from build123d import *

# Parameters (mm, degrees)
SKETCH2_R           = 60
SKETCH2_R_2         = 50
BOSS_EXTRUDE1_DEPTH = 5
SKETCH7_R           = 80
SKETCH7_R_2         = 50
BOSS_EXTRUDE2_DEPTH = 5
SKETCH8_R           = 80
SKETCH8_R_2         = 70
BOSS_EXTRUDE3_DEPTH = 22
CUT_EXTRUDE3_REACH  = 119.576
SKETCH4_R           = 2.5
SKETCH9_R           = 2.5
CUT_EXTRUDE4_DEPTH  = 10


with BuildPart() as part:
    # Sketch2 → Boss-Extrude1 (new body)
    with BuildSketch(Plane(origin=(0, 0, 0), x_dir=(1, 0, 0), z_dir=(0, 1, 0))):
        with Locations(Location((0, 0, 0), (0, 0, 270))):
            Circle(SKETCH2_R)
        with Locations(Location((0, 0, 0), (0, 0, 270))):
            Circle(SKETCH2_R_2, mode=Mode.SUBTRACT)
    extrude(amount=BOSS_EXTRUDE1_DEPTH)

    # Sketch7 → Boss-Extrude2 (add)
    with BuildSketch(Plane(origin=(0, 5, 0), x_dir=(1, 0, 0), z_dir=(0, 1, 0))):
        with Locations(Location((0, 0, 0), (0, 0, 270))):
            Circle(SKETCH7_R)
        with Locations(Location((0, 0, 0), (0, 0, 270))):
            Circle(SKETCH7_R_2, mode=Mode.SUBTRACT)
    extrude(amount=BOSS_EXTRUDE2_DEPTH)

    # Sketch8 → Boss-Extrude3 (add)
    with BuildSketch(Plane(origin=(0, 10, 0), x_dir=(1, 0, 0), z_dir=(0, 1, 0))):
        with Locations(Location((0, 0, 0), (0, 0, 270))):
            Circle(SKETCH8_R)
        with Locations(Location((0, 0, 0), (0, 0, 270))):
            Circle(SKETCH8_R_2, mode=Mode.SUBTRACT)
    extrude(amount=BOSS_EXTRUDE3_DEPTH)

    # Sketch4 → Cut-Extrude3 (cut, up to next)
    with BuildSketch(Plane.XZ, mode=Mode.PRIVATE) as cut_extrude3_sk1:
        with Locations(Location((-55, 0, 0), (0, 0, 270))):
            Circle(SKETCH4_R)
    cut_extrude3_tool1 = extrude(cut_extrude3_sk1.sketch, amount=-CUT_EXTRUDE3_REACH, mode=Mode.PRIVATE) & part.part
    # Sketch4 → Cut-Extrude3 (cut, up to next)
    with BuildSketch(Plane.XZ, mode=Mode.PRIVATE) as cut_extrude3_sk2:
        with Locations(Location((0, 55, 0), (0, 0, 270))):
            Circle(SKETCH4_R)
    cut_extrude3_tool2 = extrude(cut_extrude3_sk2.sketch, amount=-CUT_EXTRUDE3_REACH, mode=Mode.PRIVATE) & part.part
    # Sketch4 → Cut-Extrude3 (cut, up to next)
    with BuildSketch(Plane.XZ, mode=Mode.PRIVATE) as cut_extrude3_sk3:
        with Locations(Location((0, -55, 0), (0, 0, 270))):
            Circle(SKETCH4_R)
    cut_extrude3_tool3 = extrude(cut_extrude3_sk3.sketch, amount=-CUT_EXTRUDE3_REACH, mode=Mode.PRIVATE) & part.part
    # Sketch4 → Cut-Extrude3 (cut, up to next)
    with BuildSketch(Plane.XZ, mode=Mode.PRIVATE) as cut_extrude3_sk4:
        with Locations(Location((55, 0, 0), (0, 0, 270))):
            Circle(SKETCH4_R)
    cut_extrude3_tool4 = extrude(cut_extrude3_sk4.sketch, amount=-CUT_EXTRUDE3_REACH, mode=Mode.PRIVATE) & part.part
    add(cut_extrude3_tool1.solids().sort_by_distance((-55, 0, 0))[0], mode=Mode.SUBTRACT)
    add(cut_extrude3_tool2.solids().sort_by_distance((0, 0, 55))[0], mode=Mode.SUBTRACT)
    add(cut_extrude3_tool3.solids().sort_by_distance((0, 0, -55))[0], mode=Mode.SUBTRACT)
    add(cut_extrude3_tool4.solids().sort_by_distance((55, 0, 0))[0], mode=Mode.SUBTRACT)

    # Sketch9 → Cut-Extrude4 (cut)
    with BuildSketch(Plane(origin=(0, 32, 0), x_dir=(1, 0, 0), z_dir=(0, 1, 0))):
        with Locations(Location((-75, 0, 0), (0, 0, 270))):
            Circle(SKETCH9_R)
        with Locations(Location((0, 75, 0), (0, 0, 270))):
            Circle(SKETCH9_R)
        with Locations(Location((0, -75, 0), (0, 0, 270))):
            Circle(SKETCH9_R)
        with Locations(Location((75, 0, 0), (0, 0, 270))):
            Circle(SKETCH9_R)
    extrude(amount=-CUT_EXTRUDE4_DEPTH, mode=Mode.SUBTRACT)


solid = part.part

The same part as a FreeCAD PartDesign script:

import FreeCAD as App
import Part
import Sketcher

doc = App.newDocument("Part")
params = doc.addObject("Spreadsheet::Sheet", "Params")
for row, (alias, value) in enumerate([
    ("sketch1_diameter", "120 mm"),
    ("sketch1_diameter2", "100 mm"),
    ("pad1_length", "5 mm"),
    ("sketch2_diameter", "160 mm"),
    ("sketch2_diameter2", "100 mm"),
    ("pad2_length", "5 mm"),
    ("sketch3_diameter", "160 mm"),
    ("sketch3_diameter2", "140 mm"),
    ("pad3_length", "22 mm"),
    ("sketch4_diameter", "5 mm"),
    ("sketch5_diameter", "5 mm"),
    ("sketch6_diameter", "5 mm"),
    ("sketch7_diameter", "5 mm"),
    ("sketch8_diameter", "5 mm"),
    ("pocket5_length", "10 mm"),
], start=1):
    params.set(f"A{row}", alias)
    params.set(f"B{row}", "=" + value)
    params.setAlias(f"B{row}", alias)

body = doc.addObject("PartDesign::Body", "Body")

# Sketch on XZ plane
sketch1 = doc.addObject("Sketcher::SketchObject", "Sketch")
body.addObject(sketch1)
sketch1.AttachmentSupport = (doc.XZ_Plane, [""])
sketch1.MapMode = "FlatFace"
sketch1.addGeometry([
    Part.Circle(App.Vector(0, 0, 0), App.Vector(0, 0, 1), 60),
    Part.Circle(App.Vector(0, 0, 0), App.Vector(0, 0, 1), 50),
], False)
sketch1.addConstraint([
    Sketcher.Constraint("Coincident", 0, 3, -1, 1),
    Sketcher.Constraint("Coincident", 1, 3, -1, 1),
    Sketcher.Constraint("Diameter", 0, 120.0),
    Sketcher.Constraint("Diameter", 1, 100.0),
])
sketch1.setExpression("Constraints[2]", "Params.sketch1_diameter")
sketch1.setExpression("Constraints[3]", "Params.sketch1_diameter2")
pad1 = doc.addObject("PartDesign::Pad", "Pad")
body.addObject(pad1)
pad1.Profile = sketch1
pad1.setExpression("Length", "Params.pad1_length")
pad1.Reversed = True

# Sketch on XZ plane
sketch2 = doc.addObject("Sketcher::SketchObject", "Sketch001")
body.addObject(sketch2)
sketch2.AttachmentSupport = (doc.XZ_Plane, [""])
sketch2.MapMode = "FlatFace"
sketch2.AttachmentOffset = App.Placement(App.Vector(0, 0, -5), App.Rotation())
sketch2.addGeometry([
    Part.Circle(App.Vector(0, 0, 0), App.Vector(0, 0, 1), 80),
    Part.Circle(App.Vector(0, 0, 0), App.Vector(0, 0, 1), 50),
], False)
sketch2.addConstraint([
    Sketcher.Constraint("Coincident", 0, 3, -1, 1),
    Sketcher.Constraint("Coincident", 1, 3, -1, 1),
    Sketcher.Constraint("Diameter", 0, 160.0),
    Sketcher.Constraint("Diameter", 1, 100.0),
])
sketch2.setExpression("Constraints[2]", "Params.sketch2_diameter")
sketch2.setExpression("Constraints[3]", "Params.sketch2_diameter2")
pad2 = doc.addObject("PartDesign::Pad", "Pad001")
body.addObject(pad2)
pad2.Profile = sketch2
pad2.setExpression("Length", "Params.pad2_length")
pad2.Reversed = True

# Sketch on XZ plane
sketch3 = doc.addObject("Sketcher::SketchObject", "Sketch002")
body.addObject(sketch3)
sketch3.AttachmentSupport = (doc.XZ_Plane, [""])
sketch3.MapMode = "FlatFace"
sketch3.AttachmentOffset = App.Placement(App.Vector(0, 0, -10), App.Rotation())
sketch3.addGeometry([
    Part.Circle(App.Vector(0, 0, 0), App.Vector(0, 0, 1), 80),
    Part.Circle(App.Vector(0, 0, 0), App.Vector(0, 0, 1), 70),
], False)
sketch3.addConstraint([
    Sketcher.Constraint("Coincident", 0, 3, -1, 1),
    Sketcher.Constraint("Coincident", 1, 3, -1, 1),
    Sketcher.Constraint("Diameter", 0, 160.0),
    Sketcher.Constraint("Diameter", 1, 140.0),
])
sketch3.setExpression("Constraints[2]", "Params.sketch3_diameter")
sketch3.setExpression("Constraints[3]", "Params.sketch3_diameter2")
pad3 = doc.addObject("PartDesign::Pad", "Pad002")
body.addObject(pad3)
pad3.Profile = sketch3
pad3.setExpression("Length", "Params.pad3_length")
pad3.Reversed = True

# Sketch on XZ plane
sketch4 = doc.addObject("Sketcher::SketchObject", "Sketch003")
body.addObject(sketch4)
sketch4.AttachmentSupport = (doc.XZ_Plane, [""])
sketch4.MapMode = "FlatFace"
sketch4.addGeometry(Part.Circle(App.Vector(-55, 0, 0), App.Vector(0, 0, 1), 2.5), False)
sketch4.addConstraint([
    Sketcher.Constraint("PointOnObject", 0, 3, -1),
    Sketcher.Constraint("Diameter", 0, 5.0),
    Sketcher.Constraint("DistanceX", 0, 3, -1, 1, 55.0),
])
sketch4.setExpression("Constraints[1]", "Params.sketch4_diameter")
pocket1 = doc.addObject("PartDesign::Pocket", "Pocket")
body.addObject(pocket1)
pocket1.Profile = sketch4
pocket1.Type = "UpToFirst"

# Sketch on XZ plane
sketch5 = doc.addObject("Sketcher::SketchObject", "Sketch004")
body.addObject(sketch5)
sketch5.AttachmentSupport = (doc.XZ_Plane, [""])
sketch5.MapMode = "FlatFace"
sketch5.addGeometry(Part.Circle(App.Vector(0, 55, 0), App.Vector(0, 0, 1), 2.5), False)
sketch5.addConstraint([
    Sketcher.Constraint("PointOnObject", 0, 3, -2),
    Sketcher.Constraint("Diameter", 0, 5.0),
    Sketcher.Constraint("DistanceY", -1, 1, 0, 3, 55.0),
])
sketch5.setExpression("Constraints[1]", "Params.sketch5_diameter")
pocket2 = doc.addObject("PartDesign::Pocket", "Pocket001")
body.addObject(pocket2)
pocket2.Profile = sketch5
pocket2.Type = "UpToFirst"

# Sketch on XZ plane
sketch6 = doc.addObject("Sketcher::SketchObject", "Sketch005")
body.addObject(sketch6)
sketch6.AttachmentSupport = (doc.XZ_Plane, [""])
sketch6.MapMode = "FlatFace"
sketch6.addGeometry(Part.Circle(App.Vector(0, -55, 0), App.Vector(0, 0, 1), 2.5), False)
sketch6.addConstraint([
    Sketcher.Constraint("PointOnObject", 0, 3, -2),
    Sketcher.Constraint("Diameter", 0, 5.0),
    Sketcher.Constraint("DistanceY", 0, 3, -1, 1, 55.0),
])
sketch6.setExpression("Constraints[1]", "Params.sketch6_diameter")
pocket3 = doc.addObject("PartDesign::Pocket", "Pocket002")
body.addObject(pocket3)
pocket3.Profile = sketch6
pocket3.Type = "UpToFirst"

# Sketch on XZ plane
sketch7 = doc.addObject("Sketcher::SketchObject", "Sketch006")
body.addObject(sketch7)
sketch7.AttachmentSupport = (doc.XZ_Plane, [""])
sketch7.MapMode = "FlatFace"
sketch7.addGeometry(Part.Circle(App.Vector(55, 0, 0), App.Vector(0, 0, 1), 2.5), False)
sketch7.addConstraint([
    Sketcher.Constraint("PointOnObject", 0, 3, -1),
    Sketcher.Constraint("Diameter", 0, 5.0),
    Sketcher.Constraint("DistanceX", -1, 1, 0, 3, 55.0),
])
sketch7.setExpression("Constraints[1]", "Params.sketch7_diameter")
pocket4 = doc.addObject("PartDesign::Pocket", "Pocket003")
body.addObject(pocket4)
pocket4.Profile = sketch7
pocket4.Type = "UpToFirst"

# Sketch on XZ plane
sketch8 = doc.addObject("Sketcher::SketchObject", "Sketch007")
body.addObject(sketch8)
sketch8.AttachmentSupport = (doc.XZ_Plane, [""])
sketch8.MapMode = "FlatFace"
sketch8.AttachmentOffset = App.Placement(App.Vector(0, 0, -32), App.Rotation())
sketch8.addGeometry([
    Part.Circle(App.Vector(-75, 0, 0), App.Vector(0, 0, 1), 2.5),
    Part.Circle(App.Vector(0, -75, 0), App.Vector(0, 0, 1), 2.5),
    Part.Circle(App.Vector(0, 75, 0), App.Vector(0, 0, 1), 2.5),
    Part.Circle(App.Vector(75, 0, 0), App.Vector(0, 0, 1), 2.5),
], False)
sketch8.addConstraint([
    Sketcher.Constraint("Equal", 0, 1),
    Sketcher.Constraint("Equal", 1, 2),
    Sketcher.Constraint("Equal", 2, 3),
    Sketcher.Constraint("Symmetric", 1, 3, 2, 3, -1, 1),
    Sketcher.Constraint("Symmetric", 0, 3, 3, 3, -1, 1),
    Sketcher.Constraint("PointOnObject", 0, 3, -1),
    Sketcher.Constraint("PointOnObject", 1, 3, -2),
    Sketcher.Constraint("Diameter", 0, 5.0),
    Sketcher.Constraint("DistanceX", 0, 3, -1, 1, 75.0),
    Sketcher.Constraint("DistanceY", 1, 3, -1, 1, 75.0),
])
sketch8.setExpression("Constraints[7]", "Params.sketch8_diameter")
pocket5 = doc.addObject("PartDesign::Pocket", "Pocket004")
body.addObject(pocket5)
pocket5.Profile = sketch8
pocket5.setExpression("Length", "Params.pocket5_length")
pocket5.Reversed = True

doc.recompute()
